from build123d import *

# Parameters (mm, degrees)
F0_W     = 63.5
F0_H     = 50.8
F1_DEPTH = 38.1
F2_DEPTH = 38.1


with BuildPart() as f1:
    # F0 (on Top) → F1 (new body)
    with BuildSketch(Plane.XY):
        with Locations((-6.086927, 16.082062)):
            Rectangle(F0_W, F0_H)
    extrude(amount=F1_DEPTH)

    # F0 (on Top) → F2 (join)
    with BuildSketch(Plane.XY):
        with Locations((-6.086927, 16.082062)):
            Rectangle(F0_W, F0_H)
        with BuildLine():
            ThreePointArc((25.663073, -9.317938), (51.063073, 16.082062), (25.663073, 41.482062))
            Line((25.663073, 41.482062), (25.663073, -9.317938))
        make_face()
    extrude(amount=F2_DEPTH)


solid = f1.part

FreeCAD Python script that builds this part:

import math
import FreeCAD as App
import Part
import Sketcher
from FreeCAD import Vector
Q = App.Units.Quantity

doc = App.newDocument("Part")
body = doc.addObject("PartDesign::Body", "Body")

sketch1 = doc.addObject("Sketcher::SketchObject", "Sketch")
body.addObject(sketch1)
sketch1.AttachmentSupport = (doc.XY_Plane, [""])
sketch1.MapMode = "FlatFace"
sketch1.addGeometry(Part.LineSegment(Vector(-37.836927, 41.482062, 0), Vector(-37.836927, -9.317938, 0)), False)
sketch1.addGeometry(Part.LineSegment(Vector(-37.836927, -9.317938, 0), Vector(25.663073, -9.317938, 0)), False)
sketch1.addGeometry(Part.LineSegment(Vector(25.663073, -9.317938, 0), Vector(25.663073, 41.482062, 0)), False)
sketch1.addGeometry(Part.LineSegment(Vector(25.663073, 41.482062, 0), Vector(-37.836927, 41.482062, 0)), False)
sketch1.addConstraint(Sketcher.Constraint("Coincident", 0, 2, 1, 1))
sketch1.addConstraint(Sketcher.Constraint("Coincident", 1, 2, 2, 1))
sketch1.addConstraint(Sketcher.Constraint("Coincident", 2, 2, 3, 1))
sketch1.addConstraint(Sketcher.Constraint("Coincident", 3, 2, 0, 1))
sketch1.addConstraint(Sketcher.Constraint("Vertical", 0))
sketch1.addConstraint(Sketcher.Constraint("Horizontal", 1))
sketch1.addConstraint(Sketcher.Constraint("Vertical", 2))
sketch1.addConstraint(Sketcher.Constraint("Horizontal", 3))
sketch1.addConstraint(Sketcher.Constraint("DistanceY", 0, 2, 0, 1, Q("2 in")))
sketch1.addConstraint(Sketcher.Constraint("DistanceX", 1, 1, 1, 2, Q("2.5 in")))
sketch1.addConstraint(Sketcher.Constraint("DistanceX", 0, 2, -1, 1, Q("37.836927 mm")))
sketch1.addConstraint(Sketcher.Constraint("DistanceY", 0, 2, -1, 1, Q("9.317938 mm")))
pad1 = doc.addObject("PartDesign::Pad", "Pad")
body.addObject(pad1)
pad1.Profile = sketch1
pad1.Length = Q("1.5 in")

sketch2 = doc.addObject("Sketcher::SketchObject", "Sketch001")
body.addObject(sketch2)
sketch2.AttachmentSupport = (doc.XY_Plane, [""])
sketch2.MapMode = "FlatFace"
sketch2.addGeometry(Part.LineSegment(Vector(-37.836927, 41.482062, 0), Vector(-37.836927, -9.317938, 0)), False)
sketch2.addGeometry(Part.LineSegment(Vector(-37.836927, -9.317938, 0), Vector(25.663073, -9.317938, 0)), False)
sketch2.addGeometry(Part.ArcOfCircle(Part.Circle(Vector(25.663073, 16.082062, 0), Vector(0, 0, 1), 25.4), math.radians(-90), math.radians(90)), False)
sketch2.addGeometry(Part.LineSegment(Vector(25.663073, 41.482062, 0), Vector(-37.836927, 41.482062, 0)), False)
sketch2.addConstraint(Sketcher.Constraint("Coincident", 0, 2, 1, 1))
sketch2.addConstraint(Sketcher.Constraint("Tangent", 1, 2, 2, 1))
sketch2.addConstraint(Sketcher.Constraint("Tangent", 2, 2, 3, 1))
sketch2.addConstraint(Sketcher.Constraint("Coincident", 3, 2, 0, 1))
sketch2.addConstraint(Sketcher.Constraint("Vertical", 0))
sketch2.addConstraint(Sketcher.Constraint("Horizontal", 1))
sketch2.addConstraint(Sketcher.Constraint("Horizontal", 3))
sketch2.addConstraint(Sketcher.Constraint("Radius", 2, Q("1 in")))
sketch2.addConstraint(Sketcher.Constraint("DistanceX", 1, 1, 1, 2, Q("2.5 in")))
sketch2.addConstraint(Sketcher.Constraint("DistanceX", -1, 1, 2, 3, Q("25.663073 mm")))
sketch2.addConstraint(Sketcher.Constraint("DistanceY", -1, 1, 2, 3, Q("16.082062 mm")))
pad2 = doc.addObject("PartDesign::Pad", "Pad001")
body.addObject(pad2)
pad2.Profile = sketch2
pad2.Length = Q("1.5 in")

doc.recompute()
